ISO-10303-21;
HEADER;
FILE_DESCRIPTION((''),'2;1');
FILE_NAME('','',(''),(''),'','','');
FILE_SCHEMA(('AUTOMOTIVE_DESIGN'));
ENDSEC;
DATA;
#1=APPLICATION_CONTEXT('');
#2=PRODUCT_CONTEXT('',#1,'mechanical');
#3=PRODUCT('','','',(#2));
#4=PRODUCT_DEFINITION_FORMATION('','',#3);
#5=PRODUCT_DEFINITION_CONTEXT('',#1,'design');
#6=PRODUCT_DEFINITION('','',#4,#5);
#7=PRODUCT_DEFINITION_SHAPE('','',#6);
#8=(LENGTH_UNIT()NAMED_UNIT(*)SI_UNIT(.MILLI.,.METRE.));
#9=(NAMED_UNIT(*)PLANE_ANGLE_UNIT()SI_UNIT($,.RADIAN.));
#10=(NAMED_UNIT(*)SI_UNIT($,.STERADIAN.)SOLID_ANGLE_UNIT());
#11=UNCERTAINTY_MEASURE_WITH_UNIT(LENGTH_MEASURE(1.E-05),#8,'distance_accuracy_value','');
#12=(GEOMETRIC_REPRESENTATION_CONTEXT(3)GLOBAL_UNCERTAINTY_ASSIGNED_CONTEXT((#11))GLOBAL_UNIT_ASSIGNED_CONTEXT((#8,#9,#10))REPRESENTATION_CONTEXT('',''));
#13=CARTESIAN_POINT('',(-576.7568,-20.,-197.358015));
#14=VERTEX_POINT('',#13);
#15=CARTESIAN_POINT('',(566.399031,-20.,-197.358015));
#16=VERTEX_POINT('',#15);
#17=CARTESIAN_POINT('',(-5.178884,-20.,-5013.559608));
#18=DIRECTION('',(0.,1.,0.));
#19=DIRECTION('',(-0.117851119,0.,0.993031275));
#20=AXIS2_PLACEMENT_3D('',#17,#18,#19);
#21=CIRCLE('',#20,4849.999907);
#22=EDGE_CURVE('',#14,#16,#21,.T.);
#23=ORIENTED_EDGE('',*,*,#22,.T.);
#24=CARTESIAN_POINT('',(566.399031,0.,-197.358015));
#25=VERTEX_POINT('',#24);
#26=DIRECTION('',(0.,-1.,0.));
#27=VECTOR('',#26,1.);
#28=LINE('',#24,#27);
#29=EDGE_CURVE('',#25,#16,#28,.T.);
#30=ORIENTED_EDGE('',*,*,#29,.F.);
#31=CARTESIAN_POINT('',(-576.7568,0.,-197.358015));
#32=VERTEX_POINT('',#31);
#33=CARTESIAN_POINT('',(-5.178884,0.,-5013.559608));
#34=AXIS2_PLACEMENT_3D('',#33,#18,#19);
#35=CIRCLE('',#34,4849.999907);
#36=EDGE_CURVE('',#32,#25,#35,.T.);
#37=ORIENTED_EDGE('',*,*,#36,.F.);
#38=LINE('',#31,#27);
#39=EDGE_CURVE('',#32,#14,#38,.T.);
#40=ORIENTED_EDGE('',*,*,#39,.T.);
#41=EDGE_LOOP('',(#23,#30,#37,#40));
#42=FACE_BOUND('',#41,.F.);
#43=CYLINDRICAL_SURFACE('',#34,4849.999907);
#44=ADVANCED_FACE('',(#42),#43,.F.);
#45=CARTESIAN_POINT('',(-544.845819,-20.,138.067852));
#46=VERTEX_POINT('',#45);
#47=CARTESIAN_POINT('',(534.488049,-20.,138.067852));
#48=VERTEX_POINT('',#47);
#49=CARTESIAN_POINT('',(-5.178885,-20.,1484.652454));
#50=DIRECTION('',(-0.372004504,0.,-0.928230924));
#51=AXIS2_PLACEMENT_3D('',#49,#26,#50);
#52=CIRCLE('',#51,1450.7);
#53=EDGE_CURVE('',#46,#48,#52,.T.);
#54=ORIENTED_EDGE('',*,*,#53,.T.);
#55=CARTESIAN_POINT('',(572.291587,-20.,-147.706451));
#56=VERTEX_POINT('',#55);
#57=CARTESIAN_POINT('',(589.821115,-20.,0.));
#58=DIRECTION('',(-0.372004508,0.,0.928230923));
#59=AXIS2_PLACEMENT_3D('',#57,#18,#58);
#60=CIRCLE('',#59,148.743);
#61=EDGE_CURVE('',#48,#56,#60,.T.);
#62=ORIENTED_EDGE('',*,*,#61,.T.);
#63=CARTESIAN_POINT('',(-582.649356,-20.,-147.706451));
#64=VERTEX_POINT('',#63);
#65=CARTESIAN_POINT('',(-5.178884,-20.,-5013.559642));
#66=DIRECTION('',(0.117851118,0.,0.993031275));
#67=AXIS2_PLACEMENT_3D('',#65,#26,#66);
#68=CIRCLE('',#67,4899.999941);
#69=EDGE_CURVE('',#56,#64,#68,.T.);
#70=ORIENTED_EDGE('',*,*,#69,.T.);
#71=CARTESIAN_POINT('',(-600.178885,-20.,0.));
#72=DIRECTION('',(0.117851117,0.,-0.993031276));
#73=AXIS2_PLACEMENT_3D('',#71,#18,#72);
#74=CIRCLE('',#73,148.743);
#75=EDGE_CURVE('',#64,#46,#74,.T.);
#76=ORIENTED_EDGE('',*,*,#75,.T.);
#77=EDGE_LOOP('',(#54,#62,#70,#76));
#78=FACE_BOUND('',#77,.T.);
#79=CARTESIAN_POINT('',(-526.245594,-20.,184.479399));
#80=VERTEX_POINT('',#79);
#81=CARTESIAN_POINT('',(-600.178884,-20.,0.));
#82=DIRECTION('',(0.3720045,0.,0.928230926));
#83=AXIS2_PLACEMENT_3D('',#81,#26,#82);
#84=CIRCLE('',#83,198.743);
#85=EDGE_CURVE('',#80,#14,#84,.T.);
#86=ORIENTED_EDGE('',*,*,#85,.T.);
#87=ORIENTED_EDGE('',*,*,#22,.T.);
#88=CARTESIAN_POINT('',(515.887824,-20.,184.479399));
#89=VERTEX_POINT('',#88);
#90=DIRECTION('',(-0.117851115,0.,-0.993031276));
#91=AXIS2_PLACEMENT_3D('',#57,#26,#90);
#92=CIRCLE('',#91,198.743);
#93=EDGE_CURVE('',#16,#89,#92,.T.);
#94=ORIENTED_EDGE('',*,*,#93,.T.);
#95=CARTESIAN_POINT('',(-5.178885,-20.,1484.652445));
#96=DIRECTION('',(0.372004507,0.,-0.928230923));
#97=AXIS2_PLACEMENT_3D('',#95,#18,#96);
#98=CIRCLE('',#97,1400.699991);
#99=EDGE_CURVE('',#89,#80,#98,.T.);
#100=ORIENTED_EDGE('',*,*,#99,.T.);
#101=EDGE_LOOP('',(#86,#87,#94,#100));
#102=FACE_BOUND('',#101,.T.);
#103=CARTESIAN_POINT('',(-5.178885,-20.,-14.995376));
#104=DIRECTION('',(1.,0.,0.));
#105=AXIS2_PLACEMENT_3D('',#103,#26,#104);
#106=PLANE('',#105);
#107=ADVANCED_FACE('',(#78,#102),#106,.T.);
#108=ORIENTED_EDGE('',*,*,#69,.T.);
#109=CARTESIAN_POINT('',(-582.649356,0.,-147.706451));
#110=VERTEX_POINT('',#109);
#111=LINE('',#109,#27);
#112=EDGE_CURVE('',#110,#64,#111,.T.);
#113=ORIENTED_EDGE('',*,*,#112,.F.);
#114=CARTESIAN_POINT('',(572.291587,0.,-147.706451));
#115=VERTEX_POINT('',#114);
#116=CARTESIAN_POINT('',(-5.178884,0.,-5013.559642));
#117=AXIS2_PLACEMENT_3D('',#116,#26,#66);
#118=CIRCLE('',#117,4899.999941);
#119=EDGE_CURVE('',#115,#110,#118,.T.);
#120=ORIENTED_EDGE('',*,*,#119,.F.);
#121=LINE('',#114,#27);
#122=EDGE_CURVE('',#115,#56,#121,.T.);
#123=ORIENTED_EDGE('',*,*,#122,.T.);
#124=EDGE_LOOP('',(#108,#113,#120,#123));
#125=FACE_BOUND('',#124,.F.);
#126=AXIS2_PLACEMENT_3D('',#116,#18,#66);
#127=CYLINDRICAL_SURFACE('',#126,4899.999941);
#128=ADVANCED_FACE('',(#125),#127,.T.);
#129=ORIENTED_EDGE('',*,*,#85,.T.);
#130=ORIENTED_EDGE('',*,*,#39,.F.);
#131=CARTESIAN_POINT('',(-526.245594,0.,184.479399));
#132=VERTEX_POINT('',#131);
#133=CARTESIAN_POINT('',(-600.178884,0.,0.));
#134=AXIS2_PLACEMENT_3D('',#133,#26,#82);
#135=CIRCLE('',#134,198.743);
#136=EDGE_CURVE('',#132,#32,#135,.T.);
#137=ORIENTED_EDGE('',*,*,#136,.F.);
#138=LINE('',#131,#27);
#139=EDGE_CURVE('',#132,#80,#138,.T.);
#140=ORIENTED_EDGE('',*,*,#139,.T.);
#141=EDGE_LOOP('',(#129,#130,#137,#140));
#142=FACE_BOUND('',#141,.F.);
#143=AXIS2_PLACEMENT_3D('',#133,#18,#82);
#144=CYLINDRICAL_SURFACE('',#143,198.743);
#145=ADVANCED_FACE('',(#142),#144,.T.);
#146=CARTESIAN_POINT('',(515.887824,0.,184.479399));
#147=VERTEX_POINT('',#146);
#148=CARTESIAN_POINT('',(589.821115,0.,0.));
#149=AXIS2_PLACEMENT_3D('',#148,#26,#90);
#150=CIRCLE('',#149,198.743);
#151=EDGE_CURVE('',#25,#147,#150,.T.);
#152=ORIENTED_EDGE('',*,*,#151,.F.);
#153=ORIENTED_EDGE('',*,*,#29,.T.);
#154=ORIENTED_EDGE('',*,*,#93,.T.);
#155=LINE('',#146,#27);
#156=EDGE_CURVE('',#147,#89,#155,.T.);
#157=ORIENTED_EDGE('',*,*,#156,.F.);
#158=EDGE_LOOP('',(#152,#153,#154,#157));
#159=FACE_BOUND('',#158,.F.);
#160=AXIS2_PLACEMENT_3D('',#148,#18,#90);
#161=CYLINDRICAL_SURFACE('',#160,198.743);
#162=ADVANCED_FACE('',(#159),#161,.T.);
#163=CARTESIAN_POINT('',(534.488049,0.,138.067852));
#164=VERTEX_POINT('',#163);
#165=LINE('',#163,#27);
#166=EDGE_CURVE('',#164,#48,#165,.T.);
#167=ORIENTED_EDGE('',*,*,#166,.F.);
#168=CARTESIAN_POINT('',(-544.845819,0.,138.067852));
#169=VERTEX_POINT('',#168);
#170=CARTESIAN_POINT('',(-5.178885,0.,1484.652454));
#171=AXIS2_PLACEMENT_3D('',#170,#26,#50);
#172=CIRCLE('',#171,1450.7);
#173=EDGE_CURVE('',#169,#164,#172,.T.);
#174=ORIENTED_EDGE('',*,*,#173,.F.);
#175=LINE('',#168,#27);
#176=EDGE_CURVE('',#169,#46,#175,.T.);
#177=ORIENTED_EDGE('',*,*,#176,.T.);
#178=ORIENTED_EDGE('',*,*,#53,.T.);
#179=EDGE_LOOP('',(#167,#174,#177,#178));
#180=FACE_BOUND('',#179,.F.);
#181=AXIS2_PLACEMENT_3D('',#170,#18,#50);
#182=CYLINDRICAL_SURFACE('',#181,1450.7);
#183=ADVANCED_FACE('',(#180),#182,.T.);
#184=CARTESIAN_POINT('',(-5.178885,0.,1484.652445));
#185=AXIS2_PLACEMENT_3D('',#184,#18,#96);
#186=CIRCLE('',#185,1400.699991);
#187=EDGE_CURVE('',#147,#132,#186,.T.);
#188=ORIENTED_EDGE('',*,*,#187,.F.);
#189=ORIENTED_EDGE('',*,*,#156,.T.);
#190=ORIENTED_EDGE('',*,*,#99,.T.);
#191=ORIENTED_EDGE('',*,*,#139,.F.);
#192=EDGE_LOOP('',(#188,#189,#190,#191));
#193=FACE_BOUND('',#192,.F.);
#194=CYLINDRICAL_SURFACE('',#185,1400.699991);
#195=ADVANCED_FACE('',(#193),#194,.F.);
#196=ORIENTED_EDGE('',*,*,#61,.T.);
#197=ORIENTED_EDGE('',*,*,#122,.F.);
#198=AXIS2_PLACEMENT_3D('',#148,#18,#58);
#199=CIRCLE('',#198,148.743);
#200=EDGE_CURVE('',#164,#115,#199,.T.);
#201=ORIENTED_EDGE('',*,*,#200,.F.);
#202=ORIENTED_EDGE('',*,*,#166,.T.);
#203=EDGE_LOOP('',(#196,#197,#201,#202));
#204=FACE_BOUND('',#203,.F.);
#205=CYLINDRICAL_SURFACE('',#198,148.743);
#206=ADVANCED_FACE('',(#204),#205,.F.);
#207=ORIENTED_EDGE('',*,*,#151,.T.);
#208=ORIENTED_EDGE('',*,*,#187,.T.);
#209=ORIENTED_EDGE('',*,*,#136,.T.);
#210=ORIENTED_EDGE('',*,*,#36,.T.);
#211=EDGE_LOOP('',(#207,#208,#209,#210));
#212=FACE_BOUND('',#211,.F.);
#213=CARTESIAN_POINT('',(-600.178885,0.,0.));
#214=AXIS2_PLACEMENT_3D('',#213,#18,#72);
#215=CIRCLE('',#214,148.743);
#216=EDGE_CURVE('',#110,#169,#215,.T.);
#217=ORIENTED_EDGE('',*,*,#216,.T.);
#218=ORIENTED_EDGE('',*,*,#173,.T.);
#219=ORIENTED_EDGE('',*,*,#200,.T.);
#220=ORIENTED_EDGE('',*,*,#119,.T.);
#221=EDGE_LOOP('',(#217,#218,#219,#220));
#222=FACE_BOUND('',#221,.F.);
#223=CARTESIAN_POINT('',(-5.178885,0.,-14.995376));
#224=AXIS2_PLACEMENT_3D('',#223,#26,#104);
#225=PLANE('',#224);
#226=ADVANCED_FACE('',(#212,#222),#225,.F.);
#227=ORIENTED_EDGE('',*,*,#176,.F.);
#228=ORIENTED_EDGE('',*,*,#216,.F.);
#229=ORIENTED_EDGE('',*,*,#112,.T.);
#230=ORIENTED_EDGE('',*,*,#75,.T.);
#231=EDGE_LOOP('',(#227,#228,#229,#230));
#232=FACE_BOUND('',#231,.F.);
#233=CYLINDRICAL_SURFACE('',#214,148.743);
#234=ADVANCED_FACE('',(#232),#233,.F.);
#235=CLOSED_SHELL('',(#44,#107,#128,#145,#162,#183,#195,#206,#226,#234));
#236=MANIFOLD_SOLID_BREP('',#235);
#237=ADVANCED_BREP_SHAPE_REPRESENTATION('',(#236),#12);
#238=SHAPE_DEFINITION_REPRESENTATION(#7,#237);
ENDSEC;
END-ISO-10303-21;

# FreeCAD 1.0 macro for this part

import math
import FreeCAD as App
import Part
import Sketcher
Q = App.Units.Quantity

doc = App.newDocument("Part")
body = doc.addObject("PartDesign::Body", "Body")

# Sketch on XZ plane
sketch1 = body.newObject("Sketcher::SketchObject", "Sketch")
sketch1.AttachmentSupport = (doc.getObject("XZ_Plane"), [""])
sketch1.MapMode = "FlatFace"
sketch1.addGeometry([
    Part.ArcOfCircle(Part.Circle(App.Vector(-5, 1485, 0), App.Vector(0, 0, 1), 1401), math.radians(-112), math.radians(-68)),  # 0
    Part.ArcOfCircle(Part.Circle(App.Vector(-600, 0, 0), App.Vector(0, 0, 1), 199), math.radians(68), math.radians(277)),  # 1
    Part.ArcOfCircle(Part.Circle(App.Vector(-5, -5014, 0), App.Vector(0, 0, 1), 4850), math.radians(83.23), math.radians(96.77)),  # 2
    Part.ArcOfCircle(Part.Circle(App.Vector(590, 0, 0), App.Vector(0, 0, 1), 199), math.radians(-97), math.radians(112)),  # 3
    Part.ArcOfCircle(Part.Circle(App.Vector(-5, -5014, 0), App.Vector(0, 0, 1), 4900), math.radians(83.23), math.radians(96.77)),  # 4
    Part.ArcOfCircle(Part.Circle(App.Vector(-600, 0, 0), App.Vector(0, 0, 1), 149), math.radians(68), math.radians(277)),  # 5
    Part.ArcOfCircle(Part.Circle(App.Vector(-5, 1485, 0), App.Vector(0, 0, 1), 1451), math.radians(-112), math.radians(-68)),  # 6
    Part.ArcOfCircle(Part.Circle(App.Vector(590, 0, 0), App.Vector(0, 0, 1), 149), math.radians(-97), math.radians(112)),  # 7
], False)
sketch1.addConstraint([
    Sketcher.Constraint("Tangent", 0, 1, 1, 1),
    Sketcher.Constraint("Tangent", 1, 2, 2, 2),
    Sketcher.Constraint("Tangent", 2, 1, 3, 1),
    Sketcher.Constraint("Tangent", 3, 2, 0, 2),
    Sketcher.Constraint("Tangent", 4, 2, 5, 2),
    Sketcher.Constraint("Tangent", 5, 1, 6, 1),
    Sketcher.Constraint("Tangent", 6, 2, 7, 2),
    Sketcher.Constraint("Tangent", 7, 1, 4, 1),
    Sketcher.Constraint("Coincident", 5, 3, 1, 3),
    Sketcher.Constraint("Coincident", 6, 3, 0, 3),
    Sketcher.Constraint("Coincident", 7, 3, 3, 3),
    Sketcher.Constraint("Equal", 1, 3),
    Sketcher.Constraint("PointOnObject", 1, 3, -1),
    Sketcher.Constraint("PointOnObject", 3, 3, -1),
    Sketcher.Constraint("Radius", 6, Q("1450.7 mm")),
    Sketcher.Constraint("Radius", 1, Q("198.743 mm")),
    Sketcher.Constraint("Radius", 5, Q("148.743 mm")),
    Sketcher.Constraint("DistanceX", 1, 3, 0, 3, Q("594.999999 mm")),
    Sketcher.Constraint("Radius", 4, Q("4899.999941 mm")),
    Sketcher.Constraint("Radius", 2, Q("4849.999907 mm")),
    Sketcher.Constraint("DistanceX", 5, 1, -1, 1, Q("544.845819 mm")),
])
pad1 = body.newObject("PartDesign::Pad", "Pad")
pad1.Profile = sketch1
pad1.Length = 20

doc.recompute()
